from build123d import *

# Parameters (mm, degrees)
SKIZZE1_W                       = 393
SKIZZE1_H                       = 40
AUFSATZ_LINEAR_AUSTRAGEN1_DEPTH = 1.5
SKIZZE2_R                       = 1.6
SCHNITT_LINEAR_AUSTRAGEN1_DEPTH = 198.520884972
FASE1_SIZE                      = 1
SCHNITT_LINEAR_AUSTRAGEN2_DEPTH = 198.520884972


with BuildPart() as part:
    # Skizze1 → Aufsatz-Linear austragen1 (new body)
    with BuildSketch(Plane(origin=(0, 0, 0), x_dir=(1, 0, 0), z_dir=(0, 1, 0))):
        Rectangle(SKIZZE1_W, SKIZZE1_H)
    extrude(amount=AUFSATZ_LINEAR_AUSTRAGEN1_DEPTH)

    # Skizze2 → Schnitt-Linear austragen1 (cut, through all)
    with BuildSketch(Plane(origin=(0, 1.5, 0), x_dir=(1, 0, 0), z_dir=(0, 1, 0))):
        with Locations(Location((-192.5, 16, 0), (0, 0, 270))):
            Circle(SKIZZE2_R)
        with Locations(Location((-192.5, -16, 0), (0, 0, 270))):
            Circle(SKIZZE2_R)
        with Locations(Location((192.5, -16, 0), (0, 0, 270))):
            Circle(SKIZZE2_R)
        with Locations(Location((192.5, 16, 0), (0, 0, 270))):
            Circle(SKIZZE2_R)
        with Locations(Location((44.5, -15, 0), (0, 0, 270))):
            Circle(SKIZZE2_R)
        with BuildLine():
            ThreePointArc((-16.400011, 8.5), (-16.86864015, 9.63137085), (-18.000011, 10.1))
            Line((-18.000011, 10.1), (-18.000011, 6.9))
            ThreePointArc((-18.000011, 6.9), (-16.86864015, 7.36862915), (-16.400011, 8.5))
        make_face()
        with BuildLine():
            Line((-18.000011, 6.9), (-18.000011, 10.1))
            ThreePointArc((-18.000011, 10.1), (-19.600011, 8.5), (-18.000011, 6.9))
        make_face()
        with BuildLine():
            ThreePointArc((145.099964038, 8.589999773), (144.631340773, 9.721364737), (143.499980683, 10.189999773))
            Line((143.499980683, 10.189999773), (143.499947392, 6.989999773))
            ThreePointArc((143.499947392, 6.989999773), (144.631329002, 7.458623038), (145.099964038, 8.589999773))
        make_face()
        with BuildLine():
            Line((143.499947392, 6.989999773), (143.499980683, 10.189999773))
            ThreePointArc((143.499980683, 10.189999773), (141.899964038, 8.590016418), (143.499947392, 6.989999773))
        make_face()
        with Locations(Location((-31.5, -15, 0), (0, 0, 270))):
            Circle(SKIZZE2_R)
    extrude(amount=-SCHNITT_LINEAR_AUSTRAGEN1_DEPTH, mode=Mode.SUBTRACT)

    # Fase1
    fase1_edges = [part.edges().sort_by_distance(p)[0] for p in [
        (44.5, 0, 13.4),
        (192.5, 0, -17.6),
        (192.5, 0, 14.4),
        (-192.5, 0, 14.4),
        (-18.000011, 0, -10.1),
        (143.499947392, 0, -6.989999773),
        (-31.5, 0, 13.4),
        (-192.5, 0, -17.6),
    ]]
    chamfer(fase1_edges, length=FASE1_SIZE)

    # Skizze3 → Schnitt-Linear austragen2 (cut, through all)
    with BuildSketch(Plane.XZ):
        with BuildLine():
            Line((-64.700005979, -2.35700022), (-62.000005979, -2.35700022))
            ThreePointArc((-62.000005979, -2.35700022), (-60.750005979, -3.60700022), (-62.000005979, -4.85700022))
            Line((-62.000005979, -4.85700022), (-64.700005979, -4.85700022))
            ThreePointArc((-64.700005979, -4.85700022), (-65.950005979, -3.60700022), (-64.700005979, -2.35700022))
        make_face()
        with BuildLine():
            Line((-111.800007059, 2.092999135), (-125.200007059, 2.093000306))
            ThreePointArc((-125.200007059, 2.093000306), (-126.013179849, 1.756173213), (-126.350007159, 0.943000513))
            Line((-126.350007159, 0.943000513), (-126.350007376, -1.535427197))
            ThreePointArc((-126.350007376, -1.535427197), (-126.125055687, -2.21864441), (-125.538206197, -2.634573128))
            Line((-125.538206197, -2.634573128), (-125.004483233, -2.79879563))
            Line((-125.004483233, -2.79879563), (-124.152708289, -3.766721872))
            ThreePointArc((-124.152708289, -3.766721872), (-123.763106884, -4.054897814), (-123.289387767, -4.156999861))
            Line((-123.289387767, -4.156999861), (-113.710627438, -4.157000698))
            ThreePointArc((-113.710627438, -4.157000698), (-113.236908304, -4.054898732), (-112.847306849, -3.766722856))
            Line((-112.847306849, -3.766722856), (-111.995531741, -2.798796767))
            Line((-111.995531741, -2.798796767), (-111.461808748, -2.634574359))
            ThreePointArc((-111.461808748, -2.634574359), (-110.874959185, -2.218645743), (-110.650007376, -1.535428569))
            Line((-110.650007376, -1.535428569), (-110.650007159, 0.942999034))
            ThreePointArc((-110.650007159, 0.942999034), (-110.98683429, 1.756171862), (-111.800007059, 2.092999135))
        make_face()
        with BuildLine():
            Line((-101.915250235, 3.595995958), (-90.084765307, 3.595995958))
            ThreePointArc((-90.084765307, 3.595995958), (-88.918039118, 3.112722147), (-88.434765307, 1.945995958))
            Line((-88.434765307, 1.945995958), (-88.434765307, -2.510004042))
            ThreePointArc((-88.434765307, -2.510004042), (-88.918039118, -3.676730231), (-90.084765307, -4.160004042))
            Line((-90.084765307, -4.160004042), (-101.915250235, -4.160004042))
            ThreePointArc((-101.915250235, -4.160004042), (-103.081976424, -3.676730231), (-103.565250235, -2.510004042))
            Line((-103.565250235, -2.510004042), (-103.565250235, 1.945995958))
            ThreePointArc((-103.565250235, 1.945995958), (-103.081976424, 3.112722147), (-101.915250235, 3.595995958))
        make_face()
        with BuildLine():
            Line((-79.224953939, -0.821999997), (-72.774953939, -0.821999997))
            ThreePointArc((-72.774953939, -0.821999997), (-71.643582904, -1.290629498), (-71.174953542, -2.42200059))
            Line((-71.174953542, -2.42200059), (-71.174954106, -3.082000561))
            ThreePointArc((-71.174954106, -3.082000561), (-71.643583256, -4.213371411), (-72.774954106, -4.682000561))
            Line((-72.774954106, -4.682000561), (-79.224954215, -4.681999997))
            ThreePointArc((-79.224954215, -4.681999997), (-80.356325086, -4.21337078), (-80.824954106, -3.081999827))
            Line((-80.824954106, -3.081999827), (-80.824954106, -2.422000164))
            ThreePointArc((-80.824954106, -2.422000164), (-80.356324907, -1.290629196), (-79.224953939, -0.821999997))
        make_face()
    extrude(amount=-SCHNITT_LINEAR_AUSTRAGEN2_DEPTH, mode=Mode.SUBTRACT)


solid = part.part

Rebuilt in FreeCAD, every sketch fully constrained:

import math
import FreeCAD as App
import Part
import Sketcher

V = App.Vector
Q = App.Units.Quantity


def edges_at(feature, points):
    """Names of the edges that pass closest to the given points."""
    edges = feature.Shape.Edges
    near = lambda p: min(range(len(edges)), key=lambda i: edges[i].distToShape(Part.Vertex(*p))[0])
    return sorted({f"Edge{near(p) + 1}" for p in points})


def add_polygon(sketch, points):
    """Adds a closed chain of lines whose ends are joined by coincident constraints."""
    first, n = sketch.GeometryCount, len(points)
    for a, b in zip(points, points[1:] + points[:1]):
        sketch.addGeometry(Part.LineSegment(App.Vector(*a, 0), App.Vector(*b, 0)), False)
    for i in range(n):
        sketch.addConstraint(Sketcher.Constraint("Coincident", first + i, 2, first + (i + 1) % n, 1))

doc = App.newDocument("Part")
body = doc.addObject("PartDesign::Body", "Body")

sketch1 = body.newObject("Sketcher::SketchObject", "Sketch")
sketch1.AttachmentSupport = (doc.getObject("XZ_Plane"), [""])
sketch1.MapMode = "FlatFace"
add_polygon(sketch1, [(-196, -20), (-196, 20), (196, 20), (196, -20)])
sketch1.addConstraint(Sketcher.Constraint("Vertical", 0))
sketch1.addConstraint(Sketcher.Constraint("Horizontal", 1))
sketch1.addConstraint(Sketcher.Constraint("Vertical", 2))
sketch1.addConstraint(Sketcher.Constraint("Horizontal", 3))
sketch1.addConstraint(Sketcher.Constraint("Symmetric", 0, 2, 2, 2, -1, 1))
sketch1.addConstraint(Sketcher.Constraint("DistanceX", 1, 1, 1, 2, Q("393 mm")))
sketch1.addConstraint(Sketcher.Constraint("DistanceY", 0, 1, 0, 2, Q("40 mm")))
pad1 = body.newObject("PartDesign::Pad", "Pad")
pad1.Profile = sketch1
pad1.Length = 1.5
pad1.Reversed = True

sketch2 = body.newObject("Sketcher::SketchObject", "Sketch001")
sketch2.AttachmentSupport = (doc.getObject("XZ_Plane"), [""])
sketch2.MapMode = "FlatFace"
sketch2.AttachmentOffset = App.Placement(V(0, 0, -1.5), App.Rotation())
sketch2.addGeometry(Part.Circle(V(-192.5, -16, 0), V(0, 0, 1), 1.6), False)
sketch2.addGeometry(Part.Circle(V(-192.5, 16, 0), V(0, 0, 1), 1.6), False)
sketch2.addGeometry(Part.Circle(V(192.5, 16, 0), V(0, 0, 1), 1.6), False)
sketch2.addGeometry(Part.Circle(V(192.5, -16, 0), V(0, 0, 1), 1.6), False)
sketch2.addGeometry(Part.Circle(V(44.5, 15, 0), V(0, 0, 1), 1.6), False)
sketch2.addGeometry(Part.ArcOfCircle(Part.Circle(V(-18, -8.5, 0), V(0, 0, 1), 1.6), math.radians(-90), math.radians(0)), False)
sketch2.addGeometry(Part.ArcOfCircle(Part.Circle(V(-18, -8.5, 0), V(0, 0, 1), 1.6), math.radians(90), math.radians(270)), False)
sketch2.addGeometry(Part.ArcOfCircle(Part.Circle(V(-18, -8.5, 0), V(0, 0, 1), 1.6), math.radians(0), math.radians(90)), False)
sketch2.addGeometry(Part.ArcOfCircle(Part.Circle(V(143.5, -8.6, 0), V(0, 0, 1), 1.6), math.radians(-90), math.radians(0)), False)
sketch2.addGeometry(Part.ArcOfCircle(Part.Circle(V(143.5, -8.6, 0), V(0, 0, 1), 1.6), math.radians(90), math.radians(270)), False)
sketch2.addGeometry(Part.ArcOfCircle(Part.Circle(V(143.5, -8.6, 0), V(0, 0, 1), 1.6), math.radians(0), math.radians(90)), False)
sketch2.addGeometry(Part.Circle(V(-31.5, 15, 0), V(0, 0, 1), 1.6), False)
sketch2.addConstraint(Sketcher.Constraint("Tangent", 5, 1, 6, 2))
sketch2.addConstraint(Sketcher.Constraint("Tangent", 6, 1, 7, 2))
sketch2.addConstraint(Sketcher.Constraint("Tangent", 7, 1, 5, 2))
sketch2.addConstraint(Sketcher.Constraint("Tangent", 8, 1, 9, 2))
sketch2.addConstraint(Sketcher.Constraint("Tangent", 9, 1, 10, 2))
sketch2.addConstraint(Sketcher.Constraint("Tangent", 10, 1, 8, 2))
sketch2.addConstraint(Sketcher.Constraint("Equal", 0, 1))
sketch2.addConstraint(Sketcher.Constraint("Equal", 1, 2))
sketch2.addConstraint(Sketcher.Constraint("Equal", 2, 3))
sketch2.addConstraint(Sketcher.Constraint("Equal", 3, 4))
sketch2.addConstraint(Sketcher.Constraint("Equal", 4, 5))
sketch2.addConstraint(Sketcher.Constraint("Equal", 7, 8))
sketch2.addConstraint(Sketcher.Constraint("Equal", 10, 11))
sketch2.addConstraint(Sketcher.Constraint("Symmetric", 0, 3, 2, 3, -1, 1))
sketch2.addConstraint(Sketcher.Constraint("Symmetric", 1, 3, 3, 3, -1, 1))
sketch2.addConstraint(Sketcher.Constraint("Symmetric", 1, 3, 2, 3, -2))
sketch2.addConstraint(Sketcher.Constraint("Horizontal", 4, 3, 11, 3))
sketch2.addConstraint(Sketcher.Constraint("Horizontal", 6, 3, 7, 1))
sketch2.addConstraint(Sketcher.Constraint("Horizontal", 9, 3, 10, 1))
sketch2.addConstraint(Sketcher.Constraint("Vertical", 7, 3, 5, 1))
sketch2.addConstraint(Sketcher.Constraint("Vertical", 5, 1, 6, 1))
sketch2.addConstraint(Sketcher.Constraint("Diameter", 0, Q("3.2 mm")))
sketch2.addConstraint(Sketcher.Constraint("DistanceY", 0, 3, -1, 1, Q("16 mm")))
sketch2.addConstraint(Sketcher.Constraint("DistanceY", -1, 1, 4, 3, Q("15 mm")))
sketch2.addConstraint(Sketcher.Constraint("DistanceX", 1, 3, 2, 3, Q("385 mm")))
sketch2.addConstraint(Sketcher.Constraint("DistanceX", 4, 3, 2, 3, Q("148 mm")))
sketch2.addConstraint(Sketcher.Constraint("DistanceX", 11, 3, 4, 3, Q("76 mm")))
sketch2.addConstraint(Sketcher.Constraint("DistanceY", 5, 3, -1, 1, Q("8.5 mm")))
sketch2.addConstraint(Sketcher.Constraint("DistanceY", 8, 3, -1, 1, Q("8.59 mm")))
sketch2.addConstraint(Sketcher.Constraint("DistanceX", 5, 3, -1, 1, Q("18.000011 mm")))
sketch2.addConstraint(Sketcher.Constraint("DistanceX", -1, 1, 8, 1, Q("143.499981 mm")))
sketch2.addConstraint(Sketcher.Constraint("DistanceX", -1, 1, 8, 3, Q("143.499964 mm")))
sketch2.addConstraint(Sketcher.Constraint("DistanceX", -1, 1, 9, 1, Q("143.499947 mm")))
pocket1 = body.newObject("PartDesign::Pocket", "Pocket")
pocket1.Profile = sketch2
pocket1.Type = "ThroughAll"
pocket1.Reversed = True
doc.recompute()

chamfer = body.newObject("PartDesign::Chamfer", "Chamfer")
chamfer.Base = (pocket1, edges_at(pocket1, [
    (44.5, 0, 13.4),
    (192.5, 0, -17.6),
    (192.5, 0, 14.4),
    (-192.5, 0, 14.4),
    (-16.869, 0, -9.631),
    (141.9, 0, -8.59),
    (-31.5, 0, 13.4),
    (-192.5, 0, -17.6),
]))
chamfer.Size = 1

sketch3 = body.newObject("Sketcher::SketchObject", "Sketch002")
sketch3.AttachmentSupport = (doc.getObject("XZ_Plane"), [""])
sketch3.MapMode = "FlatFace"
sketch3.addGeometry(Part.LineSegment(V(-62, -2.4, 0), V(-64.7, -2.4, 0)), False)
sketch3.addGeometry(Part.ArcOfCircle(Part.Circle(V(-64.7, -3.6, 0), V(0, 0, 1), 1.2), math.radians(90), math.radians(270)), False)
sketch3.addGeometry(Part.LineSegment(V(-64.7, -4.9, 0), V(-62, -4.9, 0)), False)
sketch3.addGeometry(Part.ArcOfCircle(Part.Circle(V(-62, -3.6, 0), V(0, 0, 1), 1.2), math.radians(-90), math.radians(90)), False)
sketch3.addGeometry(Part.LineSegment(V(-111.8, 2.1, 0), V(-125.2, 2.1, 0)), False)
sketch3.addGeometry(Part.ArcOfCircle(Part.Circle(V(-125.2, 0.9, 0), V(0, 0, 1), 1.1), math.radians(90), math.radians(180)), False)
sketch3.addGeometry(Part.LineSegment(V(-126.4, 0.9, 0), V(-126.4, -1.5, 0)), False)
sketch3.addGeometry(Part.ArcOfCircle(Part.Circle(V(-125.2, -1.5, 0), V(0, 0, 1), 1.1), math.radians(180), math.radians(253)), False)
sketch3.addGeometry(Part.LineSegment(V(-125.5, -2.6, 0), V(-125, -2.8, 0)), False)
sketch3.addGeometry(Part.LineSegment(V(-125, -2.8, 0), V(-124.2, -3.8, 0)), False)
sketch3.addGeometry(Part.ArcOfCircle(Part.Circle(V(-123.3, -3, 0), V(0, 0, 1), 1.2), math.radians(-139), math.radians(-90)), False)
sketch3.addGeometry(Part.LineSegment(V(-123.3, -4.2, 0), V(-113.7, -4.2, 0)), False)
sketch3.addGeometry(Part.ArcOfCircle(Part.Circle(V(-113.7, -3, 0), V(0, 0, 1), 1.2), math.radians(-90), math.radians(-41)), False)
sketch3.addGeometry(Part.LineSegment(V(-112.8, -3.8, 0), V(-112, -2.8, 0)), False)
sketch3.addGeometry(Part.LineSegment(V(-112, -2.8, 0), V(-111.5, -2.6, 0)), False)
sketch3.addGeometry(Part.ArcOfCircle(Part.Circle(V(-111.8, -1.5, 0), V(0, 0, 1), 1.2), math.radians(-73), math.radians(0)), False)
sketch3.addGeometry(Part.LineSegment(V(-110.7, -1.5, 0), V(-110.7, 0.9, 0)), False)
sketch3.addGeometry(Part.ArcOfCircle(Part.Circle(V(-111.8, 0.9, 0), V(0, 0, 1), 1.2), math.radians(0), math.radians(90)), False)
sketch3.addGeometry(Part.LineSegment(V(-90.1, 3.6, 0), V(-101.9, 3.6, 0)), False)
sketch3.addGeometry(Part.ArcOfCircle(Part.Circle(V(-101.9, 1.9, 0), V(0, 0, 1), 1.6), math.radians(90), math.radians(180)), False)
sketch3.addGeometry(Part.LineSegment(V(-103.6, 1.9, 0), V(-103.6, -2.5, 0)), False)
sketch3.addGeometry(Part.ArcOfCircle(Part.Circle(V(-101.9, -2.5, 0), V(0, 0, 1), 1.6), math.radians(180), math.radians(270)), False)
sketch3.addGeometry(Part.LineSegment(V(-101.9, -4.2, 0), V(-90.1, -4.2, 0)), False)
sketch3.addGeometry(Part.ArcOfCircle(Part.Circle(V(-90.1, -2.5, 0), V(0, 0, 1), 1.6), math.radians(-90), math.radians(0)), False)
sketch3.addGeometry(Part.LineSegment(V(-88.4, -2.5, 0), V(-88.4, 1.9, 0)), False)
sketch3.addGeometry(Part.ArcOfCircle(Part.Circle(V(-90.1, 1.9, 0), V(0, 0, 1), 1.6), math.radians(0), math.radians(90)), False)
sketch3.addGeometry(Part.LineSegment(V(-72.8, -0.8, 0), V(-79.2, -0.8, 0)), False)
sketch3.addGeometry(Part.ArcOfCircle(Part.Circle(V(-79.2, -2.4, 0), V(0, 0, 1), 1.6), math.radians(90), math.radians(180)), False)
sketch3.addGeometry(Part.LineSegment(V(-80.8, -2.4, 0), V(-80.8, -3.1, 0)), False)
sketch3.addGeometry(Part.ArcOfCircle(Part.Circle(V(-79.2, -3.1, 0), V(0, 0, 1), 1.6), math.radians(180), math.radians(270)), False)
sketch3.addGeometry(Part.LineSegment(V(-79.2, -4.7, 0), V(-72.8, -4.7, 0)), False)
sketch3.addGeometry(Part.ArcOfCircle(Part.Circle(V(-72.8, -3.1, 0), V(0, 0, 1), 1.6), math.radians(-90), math.radians(0)), False)
sketch3.addGeometry(Part.LineSegment(V(-71.2, -3.1, 0), V(-71.2, -2.4, 0)), False)
sketch3.addGeometry(Part.ArcOfCircle(Part.Circle(V(-72.8, -2.4, 0), V(0, 0, 1), 1.6), math.radians(0), math.radians(90)), False)
sketch3.addConstraint(Sketcher.Constraint("Tangent", 0, 2, 1, 1))
sketch3.addConstraint(Sketcher.Constraint("Tangent", 1, 2, 2, 1))
sketch3.addConstraint(Sketcher.Constraint("Tangent", 2, 2, 3, 1))
sketch3.addConstraint(Sketcher.Constraint("Tangent", 3, 2, 0, 1))
sketch3.addConstraint(Sketcher.Constraint("Tangent", 4, 2, 5, 1))
sketch3.addConstraint(Sketcher.Constraint("Tangent", 5, 2, 6, 1))
sketch3.addConstraint(Sketcher.Constraint("Tangent", 6, 2, 7, 1))
sketch3.addConstraint(Sketcher.Constraint("Tangent", 7, 2, 8, 1))
sketch3.addConstraint(Sketcher.Constraint("Coincident", 8, 2, 9, 1))
sketch3.addConstraint(Sketcher.Constraint("Tangent", 9, 2, 10, 1))
sketch3.addConstraint(Sketcher.Constraint("Tangent", 10, 2, 11, 1))
sketch3.addConstraint(Sketcher.Constraint("Tangent", 11, 2, 12, 1))
sketch3.addConstraint(Sketcher.Constraint("Tangent", 12, 2, 13, 1))
sketch3.addConstraint(Sketcher.Constraint("Coincident", 13, 2, 14, 1))
sketch3.addConstraint(Sketcher.Constraint("Tangent", 14, 2, 15, 1))
sketch3.addConstraint(Sketcher.Constraint("Tangent", 15, 2, 16, 1))
sketch3.addConstraint(Sketcher.Constraint("Tangent", 16, 2, 17, 1))
sketch3.addConstraint(Sketcher.Constraint("Tangent", 17, 2, 4, 1))
sketch3.addConstraint(Sketcher.Constraint("Tangent", 18, 2, 19, 1))
sketch3.addConstraint(Sketcher.Constraint("Tangent", 19, 2, 20, 1))
sketch3.addConstraint(Sketcher.Constraint("Tangent", 20, 2, 21, 1))
sketch3.addConstraint(Sketcher.Constraint("Tangent", 21, 2, 22, 1))
sketch3.addConstraint(Sketcher.Constraint("Tangent", 22, 2, 23, 1))
sketch3.addConstraint(Sketcher.Constraint("Tangent", 23, 2, 24, 1))
sketch3.addConstraint(Sketcher.Constraint("Tangent", 24, 2, 25, 1))
sketch3.addConstraint(Sketcher.Constraint("Tangent", 25, 2, 18, 1))
sketch3.addConstraint(Sketcher.Constraint("Tangent", 26, 2, 27, 1))
sketch3.addConstraint(Sketcher.Constraint("Tangent", 27, 2, 28, 1))
sketch3.addConstraint(Sketcher.Constraint("Tangent", 28, 2, 29, 1))
sketch3.addConstraint(Sketcher.Constraint("Tangent", 29, 2, 30, 1))
sketch3.addConstraint(Sketcher.Constraint("Tangent", 30, 2, 31, 1))
sketch3.addConstraint(Sketcher.Constraint("Tangent", 31, 2, 32, 1))
sketch3.addConstraint(Sketcher.Constraint("Tangent", 32, 2, 33, 1))
sketch3.addConstraint(Sketcher.Constraint("Tangent", 33, 2, 26, 1))
sketch3.addConstraint(Sketcher.Constraint("Horizontal", 0))
sketch3.addConstraint(Sketcher.Constraint("Horizontal", 2))
sketch3.addConstraint(Sketcher.Constraint("Horizontal", 4))
sketch3.addConstraint(Sketcher.Constraint("Vertical", 6))
sketch3.addConstraint(Sketcher.Constraint("Horizontal", 11))
sketch3.addConstraint(Sketcher.Constraint("Vertical", 16))
sketch3.addConstraint(Sketcher.Constraint("Horizontal", 18))
sketch3.addConstraint(Sketcher.Constraint("Vertical", 20))
sketch3.addConstraint(Sketcher.Constraint("Horizontal", 22))
sketch3.addConstraint(Sketcher.Constraint("Vertical", 24))
sketch3.addConstraint(Sketcher.Constraint("Horizontal", 26))
sketch3.addConstraint(Sketcher.Constraint("Vertical", 28))
sketch3.addConstraint(Sketcher.Constraint("Horizontal", 30))
sketch3.addConstraint(Sketcher.Constraint("Vertical", 32))
sketch3.addConstraint(Sketcher.Constraint("Equal", 5, 7))
sketch3.addConstraint(Sketcher.Constraint("Equal", 7, 10))
sketch3.addConstraint(Sketcher.Constraint("Equal", 10, 12))
sketch3.addConstraint(Sketcher.Constraint("Equal", 12, 15))
sketch3.addConstraint(Sketcher.Constraint("Equal", 15, 17))
sketch3.addConstraint(Sketcher.Constraint("Equal", 19, 21))
sketch3.addConstraint(Sketcher.Constraint("Equal", 21, 23))
sketch3.addConstraint(Sketcher.Constraint("Equal", 23, 25))
sketch3.addConstraint(Sketcher.Constraint("Equal", 27, 29))
sketch3.addConstraint(Sketcher.Constraint("Equal", 29, 31))
sketch3.addConstraint(Sketcher.Constraint("Equal", 31, 33))
sketch3.addConstraint(Sketcher.Constraint("Horizontal", 7, 3, 15, 3))
sketch3.addConstraint(Sketcher.Constraint("Horizontal", 9, 2, 12, 2))
sketch3.addConstraint(Sketcher.Constraint("Horizontal", 8, 2, 13, 2))
sketch3.addConstraint(Sketcher.Constraint("Horizontal", 7, 2, 14, 2))
sketch3.addConstraint(Sketcher.Constraint("Radius", 27, Q("1.6 mm")))
sketch3.addConstraint(Sketcher.Constraint("Radius", 1, Q("1.25 mm")))
sketch3.addConstraint(Sketcher.Constraint("Radius", 5, Q("1.15 mm")))
sketch3.addConstraint(Sketcher.Constraint("Radius", 19, Q("1.65 mm")))
sketch3.addConstraint(Sketcher.Constraint("DistanceX", 0, 2, 0, 1, Q("2.7 mm")))
sketch3.addConstraint(Sketcher.Constraint("DistanceX", 4, 2, 4, 1, Q("13.4 mm")))
sketch3.addConstraint(Sketcher.Constraint("DistanceX", 26, 2, 26, 1, Q("6.45 mm")))
sketch3.addConstraint(Sketcher.Constraint("DistanceY", 28, 2, 28, 1, Q("0.66 mm")))
sketch3.addConstraint(Sketcher.Constraint("DistanceX", 5, 3, 1, 3, Q("60.500001 mm")))
sketch3.addConstraint(Sketcher.Constraint("DistanceY", 1, 3, 10, 3, Q("0.6 mm")))
sketch3.addConstraint(Sketcher.Constraint("DistanceY", 10, 3, 4, 2, Q("5.1 mm")))
sketch3.addConstraint(Sketcher.Constraint("DistanceY", 20, 2, 20, 1, Q("4.456 mm")))
sketch3.addConstraint(Sketcher.Constraint("DistanceY", 1, 3, -1, 1, Q("3.607 mm")))
sketch3.addConstraint(Sketcher.Constraint("DistanceY", 27, 3, -1, 1, Q("2.422 mm")))
sketch3.addConstraint(Sketcher.Constraint("DistanceX", 11, 1, 11, 2, Q("9.57876 mm")))
sketch3.addConstraint(Sketcher.Constraint("DistanceX", 7, 2, 7, 3, Q("0.338199 mm")))
sketch3.addConstraint(Sketcher.Constraint("DistanceX", 7, 3, 9, 2, Q("1.047299 mm")))
sketch3.addConstraint(Sketcher.Constraint("Distance", 9, Q("1.289342 mm")))
sketch3.addConstraint(Sketcher.Constraint("DistanceX", 18, 2, 18, 1, Q("11.830485 mm")))
sketch3.addConstraint(Sketcher.Constraint("DistanceX", 19, 3, -1, 1, Q("101.91525 mm")))
sketch3.addConstraint(Sketcher.Constraint("DistanceX", 9, 2, -1, 1, Q("124.152708 mm")))
sketch3.addConstraint(Sketcher.Constraint("DistanceX", 23, 3, 27, 3, Q("10.859811 mm")))
sketch3.addConstraint(Sketcher.Constraint("DistanceY", -1, 1, 19, 3, Q("1.945996 mm")))
pocket2 = body.newObject("PartDesign::Pocket", "Pocket001")
pocket2.Profile = sketch3
pocket2.Type = "ThroughAll"

doc.recompute()
